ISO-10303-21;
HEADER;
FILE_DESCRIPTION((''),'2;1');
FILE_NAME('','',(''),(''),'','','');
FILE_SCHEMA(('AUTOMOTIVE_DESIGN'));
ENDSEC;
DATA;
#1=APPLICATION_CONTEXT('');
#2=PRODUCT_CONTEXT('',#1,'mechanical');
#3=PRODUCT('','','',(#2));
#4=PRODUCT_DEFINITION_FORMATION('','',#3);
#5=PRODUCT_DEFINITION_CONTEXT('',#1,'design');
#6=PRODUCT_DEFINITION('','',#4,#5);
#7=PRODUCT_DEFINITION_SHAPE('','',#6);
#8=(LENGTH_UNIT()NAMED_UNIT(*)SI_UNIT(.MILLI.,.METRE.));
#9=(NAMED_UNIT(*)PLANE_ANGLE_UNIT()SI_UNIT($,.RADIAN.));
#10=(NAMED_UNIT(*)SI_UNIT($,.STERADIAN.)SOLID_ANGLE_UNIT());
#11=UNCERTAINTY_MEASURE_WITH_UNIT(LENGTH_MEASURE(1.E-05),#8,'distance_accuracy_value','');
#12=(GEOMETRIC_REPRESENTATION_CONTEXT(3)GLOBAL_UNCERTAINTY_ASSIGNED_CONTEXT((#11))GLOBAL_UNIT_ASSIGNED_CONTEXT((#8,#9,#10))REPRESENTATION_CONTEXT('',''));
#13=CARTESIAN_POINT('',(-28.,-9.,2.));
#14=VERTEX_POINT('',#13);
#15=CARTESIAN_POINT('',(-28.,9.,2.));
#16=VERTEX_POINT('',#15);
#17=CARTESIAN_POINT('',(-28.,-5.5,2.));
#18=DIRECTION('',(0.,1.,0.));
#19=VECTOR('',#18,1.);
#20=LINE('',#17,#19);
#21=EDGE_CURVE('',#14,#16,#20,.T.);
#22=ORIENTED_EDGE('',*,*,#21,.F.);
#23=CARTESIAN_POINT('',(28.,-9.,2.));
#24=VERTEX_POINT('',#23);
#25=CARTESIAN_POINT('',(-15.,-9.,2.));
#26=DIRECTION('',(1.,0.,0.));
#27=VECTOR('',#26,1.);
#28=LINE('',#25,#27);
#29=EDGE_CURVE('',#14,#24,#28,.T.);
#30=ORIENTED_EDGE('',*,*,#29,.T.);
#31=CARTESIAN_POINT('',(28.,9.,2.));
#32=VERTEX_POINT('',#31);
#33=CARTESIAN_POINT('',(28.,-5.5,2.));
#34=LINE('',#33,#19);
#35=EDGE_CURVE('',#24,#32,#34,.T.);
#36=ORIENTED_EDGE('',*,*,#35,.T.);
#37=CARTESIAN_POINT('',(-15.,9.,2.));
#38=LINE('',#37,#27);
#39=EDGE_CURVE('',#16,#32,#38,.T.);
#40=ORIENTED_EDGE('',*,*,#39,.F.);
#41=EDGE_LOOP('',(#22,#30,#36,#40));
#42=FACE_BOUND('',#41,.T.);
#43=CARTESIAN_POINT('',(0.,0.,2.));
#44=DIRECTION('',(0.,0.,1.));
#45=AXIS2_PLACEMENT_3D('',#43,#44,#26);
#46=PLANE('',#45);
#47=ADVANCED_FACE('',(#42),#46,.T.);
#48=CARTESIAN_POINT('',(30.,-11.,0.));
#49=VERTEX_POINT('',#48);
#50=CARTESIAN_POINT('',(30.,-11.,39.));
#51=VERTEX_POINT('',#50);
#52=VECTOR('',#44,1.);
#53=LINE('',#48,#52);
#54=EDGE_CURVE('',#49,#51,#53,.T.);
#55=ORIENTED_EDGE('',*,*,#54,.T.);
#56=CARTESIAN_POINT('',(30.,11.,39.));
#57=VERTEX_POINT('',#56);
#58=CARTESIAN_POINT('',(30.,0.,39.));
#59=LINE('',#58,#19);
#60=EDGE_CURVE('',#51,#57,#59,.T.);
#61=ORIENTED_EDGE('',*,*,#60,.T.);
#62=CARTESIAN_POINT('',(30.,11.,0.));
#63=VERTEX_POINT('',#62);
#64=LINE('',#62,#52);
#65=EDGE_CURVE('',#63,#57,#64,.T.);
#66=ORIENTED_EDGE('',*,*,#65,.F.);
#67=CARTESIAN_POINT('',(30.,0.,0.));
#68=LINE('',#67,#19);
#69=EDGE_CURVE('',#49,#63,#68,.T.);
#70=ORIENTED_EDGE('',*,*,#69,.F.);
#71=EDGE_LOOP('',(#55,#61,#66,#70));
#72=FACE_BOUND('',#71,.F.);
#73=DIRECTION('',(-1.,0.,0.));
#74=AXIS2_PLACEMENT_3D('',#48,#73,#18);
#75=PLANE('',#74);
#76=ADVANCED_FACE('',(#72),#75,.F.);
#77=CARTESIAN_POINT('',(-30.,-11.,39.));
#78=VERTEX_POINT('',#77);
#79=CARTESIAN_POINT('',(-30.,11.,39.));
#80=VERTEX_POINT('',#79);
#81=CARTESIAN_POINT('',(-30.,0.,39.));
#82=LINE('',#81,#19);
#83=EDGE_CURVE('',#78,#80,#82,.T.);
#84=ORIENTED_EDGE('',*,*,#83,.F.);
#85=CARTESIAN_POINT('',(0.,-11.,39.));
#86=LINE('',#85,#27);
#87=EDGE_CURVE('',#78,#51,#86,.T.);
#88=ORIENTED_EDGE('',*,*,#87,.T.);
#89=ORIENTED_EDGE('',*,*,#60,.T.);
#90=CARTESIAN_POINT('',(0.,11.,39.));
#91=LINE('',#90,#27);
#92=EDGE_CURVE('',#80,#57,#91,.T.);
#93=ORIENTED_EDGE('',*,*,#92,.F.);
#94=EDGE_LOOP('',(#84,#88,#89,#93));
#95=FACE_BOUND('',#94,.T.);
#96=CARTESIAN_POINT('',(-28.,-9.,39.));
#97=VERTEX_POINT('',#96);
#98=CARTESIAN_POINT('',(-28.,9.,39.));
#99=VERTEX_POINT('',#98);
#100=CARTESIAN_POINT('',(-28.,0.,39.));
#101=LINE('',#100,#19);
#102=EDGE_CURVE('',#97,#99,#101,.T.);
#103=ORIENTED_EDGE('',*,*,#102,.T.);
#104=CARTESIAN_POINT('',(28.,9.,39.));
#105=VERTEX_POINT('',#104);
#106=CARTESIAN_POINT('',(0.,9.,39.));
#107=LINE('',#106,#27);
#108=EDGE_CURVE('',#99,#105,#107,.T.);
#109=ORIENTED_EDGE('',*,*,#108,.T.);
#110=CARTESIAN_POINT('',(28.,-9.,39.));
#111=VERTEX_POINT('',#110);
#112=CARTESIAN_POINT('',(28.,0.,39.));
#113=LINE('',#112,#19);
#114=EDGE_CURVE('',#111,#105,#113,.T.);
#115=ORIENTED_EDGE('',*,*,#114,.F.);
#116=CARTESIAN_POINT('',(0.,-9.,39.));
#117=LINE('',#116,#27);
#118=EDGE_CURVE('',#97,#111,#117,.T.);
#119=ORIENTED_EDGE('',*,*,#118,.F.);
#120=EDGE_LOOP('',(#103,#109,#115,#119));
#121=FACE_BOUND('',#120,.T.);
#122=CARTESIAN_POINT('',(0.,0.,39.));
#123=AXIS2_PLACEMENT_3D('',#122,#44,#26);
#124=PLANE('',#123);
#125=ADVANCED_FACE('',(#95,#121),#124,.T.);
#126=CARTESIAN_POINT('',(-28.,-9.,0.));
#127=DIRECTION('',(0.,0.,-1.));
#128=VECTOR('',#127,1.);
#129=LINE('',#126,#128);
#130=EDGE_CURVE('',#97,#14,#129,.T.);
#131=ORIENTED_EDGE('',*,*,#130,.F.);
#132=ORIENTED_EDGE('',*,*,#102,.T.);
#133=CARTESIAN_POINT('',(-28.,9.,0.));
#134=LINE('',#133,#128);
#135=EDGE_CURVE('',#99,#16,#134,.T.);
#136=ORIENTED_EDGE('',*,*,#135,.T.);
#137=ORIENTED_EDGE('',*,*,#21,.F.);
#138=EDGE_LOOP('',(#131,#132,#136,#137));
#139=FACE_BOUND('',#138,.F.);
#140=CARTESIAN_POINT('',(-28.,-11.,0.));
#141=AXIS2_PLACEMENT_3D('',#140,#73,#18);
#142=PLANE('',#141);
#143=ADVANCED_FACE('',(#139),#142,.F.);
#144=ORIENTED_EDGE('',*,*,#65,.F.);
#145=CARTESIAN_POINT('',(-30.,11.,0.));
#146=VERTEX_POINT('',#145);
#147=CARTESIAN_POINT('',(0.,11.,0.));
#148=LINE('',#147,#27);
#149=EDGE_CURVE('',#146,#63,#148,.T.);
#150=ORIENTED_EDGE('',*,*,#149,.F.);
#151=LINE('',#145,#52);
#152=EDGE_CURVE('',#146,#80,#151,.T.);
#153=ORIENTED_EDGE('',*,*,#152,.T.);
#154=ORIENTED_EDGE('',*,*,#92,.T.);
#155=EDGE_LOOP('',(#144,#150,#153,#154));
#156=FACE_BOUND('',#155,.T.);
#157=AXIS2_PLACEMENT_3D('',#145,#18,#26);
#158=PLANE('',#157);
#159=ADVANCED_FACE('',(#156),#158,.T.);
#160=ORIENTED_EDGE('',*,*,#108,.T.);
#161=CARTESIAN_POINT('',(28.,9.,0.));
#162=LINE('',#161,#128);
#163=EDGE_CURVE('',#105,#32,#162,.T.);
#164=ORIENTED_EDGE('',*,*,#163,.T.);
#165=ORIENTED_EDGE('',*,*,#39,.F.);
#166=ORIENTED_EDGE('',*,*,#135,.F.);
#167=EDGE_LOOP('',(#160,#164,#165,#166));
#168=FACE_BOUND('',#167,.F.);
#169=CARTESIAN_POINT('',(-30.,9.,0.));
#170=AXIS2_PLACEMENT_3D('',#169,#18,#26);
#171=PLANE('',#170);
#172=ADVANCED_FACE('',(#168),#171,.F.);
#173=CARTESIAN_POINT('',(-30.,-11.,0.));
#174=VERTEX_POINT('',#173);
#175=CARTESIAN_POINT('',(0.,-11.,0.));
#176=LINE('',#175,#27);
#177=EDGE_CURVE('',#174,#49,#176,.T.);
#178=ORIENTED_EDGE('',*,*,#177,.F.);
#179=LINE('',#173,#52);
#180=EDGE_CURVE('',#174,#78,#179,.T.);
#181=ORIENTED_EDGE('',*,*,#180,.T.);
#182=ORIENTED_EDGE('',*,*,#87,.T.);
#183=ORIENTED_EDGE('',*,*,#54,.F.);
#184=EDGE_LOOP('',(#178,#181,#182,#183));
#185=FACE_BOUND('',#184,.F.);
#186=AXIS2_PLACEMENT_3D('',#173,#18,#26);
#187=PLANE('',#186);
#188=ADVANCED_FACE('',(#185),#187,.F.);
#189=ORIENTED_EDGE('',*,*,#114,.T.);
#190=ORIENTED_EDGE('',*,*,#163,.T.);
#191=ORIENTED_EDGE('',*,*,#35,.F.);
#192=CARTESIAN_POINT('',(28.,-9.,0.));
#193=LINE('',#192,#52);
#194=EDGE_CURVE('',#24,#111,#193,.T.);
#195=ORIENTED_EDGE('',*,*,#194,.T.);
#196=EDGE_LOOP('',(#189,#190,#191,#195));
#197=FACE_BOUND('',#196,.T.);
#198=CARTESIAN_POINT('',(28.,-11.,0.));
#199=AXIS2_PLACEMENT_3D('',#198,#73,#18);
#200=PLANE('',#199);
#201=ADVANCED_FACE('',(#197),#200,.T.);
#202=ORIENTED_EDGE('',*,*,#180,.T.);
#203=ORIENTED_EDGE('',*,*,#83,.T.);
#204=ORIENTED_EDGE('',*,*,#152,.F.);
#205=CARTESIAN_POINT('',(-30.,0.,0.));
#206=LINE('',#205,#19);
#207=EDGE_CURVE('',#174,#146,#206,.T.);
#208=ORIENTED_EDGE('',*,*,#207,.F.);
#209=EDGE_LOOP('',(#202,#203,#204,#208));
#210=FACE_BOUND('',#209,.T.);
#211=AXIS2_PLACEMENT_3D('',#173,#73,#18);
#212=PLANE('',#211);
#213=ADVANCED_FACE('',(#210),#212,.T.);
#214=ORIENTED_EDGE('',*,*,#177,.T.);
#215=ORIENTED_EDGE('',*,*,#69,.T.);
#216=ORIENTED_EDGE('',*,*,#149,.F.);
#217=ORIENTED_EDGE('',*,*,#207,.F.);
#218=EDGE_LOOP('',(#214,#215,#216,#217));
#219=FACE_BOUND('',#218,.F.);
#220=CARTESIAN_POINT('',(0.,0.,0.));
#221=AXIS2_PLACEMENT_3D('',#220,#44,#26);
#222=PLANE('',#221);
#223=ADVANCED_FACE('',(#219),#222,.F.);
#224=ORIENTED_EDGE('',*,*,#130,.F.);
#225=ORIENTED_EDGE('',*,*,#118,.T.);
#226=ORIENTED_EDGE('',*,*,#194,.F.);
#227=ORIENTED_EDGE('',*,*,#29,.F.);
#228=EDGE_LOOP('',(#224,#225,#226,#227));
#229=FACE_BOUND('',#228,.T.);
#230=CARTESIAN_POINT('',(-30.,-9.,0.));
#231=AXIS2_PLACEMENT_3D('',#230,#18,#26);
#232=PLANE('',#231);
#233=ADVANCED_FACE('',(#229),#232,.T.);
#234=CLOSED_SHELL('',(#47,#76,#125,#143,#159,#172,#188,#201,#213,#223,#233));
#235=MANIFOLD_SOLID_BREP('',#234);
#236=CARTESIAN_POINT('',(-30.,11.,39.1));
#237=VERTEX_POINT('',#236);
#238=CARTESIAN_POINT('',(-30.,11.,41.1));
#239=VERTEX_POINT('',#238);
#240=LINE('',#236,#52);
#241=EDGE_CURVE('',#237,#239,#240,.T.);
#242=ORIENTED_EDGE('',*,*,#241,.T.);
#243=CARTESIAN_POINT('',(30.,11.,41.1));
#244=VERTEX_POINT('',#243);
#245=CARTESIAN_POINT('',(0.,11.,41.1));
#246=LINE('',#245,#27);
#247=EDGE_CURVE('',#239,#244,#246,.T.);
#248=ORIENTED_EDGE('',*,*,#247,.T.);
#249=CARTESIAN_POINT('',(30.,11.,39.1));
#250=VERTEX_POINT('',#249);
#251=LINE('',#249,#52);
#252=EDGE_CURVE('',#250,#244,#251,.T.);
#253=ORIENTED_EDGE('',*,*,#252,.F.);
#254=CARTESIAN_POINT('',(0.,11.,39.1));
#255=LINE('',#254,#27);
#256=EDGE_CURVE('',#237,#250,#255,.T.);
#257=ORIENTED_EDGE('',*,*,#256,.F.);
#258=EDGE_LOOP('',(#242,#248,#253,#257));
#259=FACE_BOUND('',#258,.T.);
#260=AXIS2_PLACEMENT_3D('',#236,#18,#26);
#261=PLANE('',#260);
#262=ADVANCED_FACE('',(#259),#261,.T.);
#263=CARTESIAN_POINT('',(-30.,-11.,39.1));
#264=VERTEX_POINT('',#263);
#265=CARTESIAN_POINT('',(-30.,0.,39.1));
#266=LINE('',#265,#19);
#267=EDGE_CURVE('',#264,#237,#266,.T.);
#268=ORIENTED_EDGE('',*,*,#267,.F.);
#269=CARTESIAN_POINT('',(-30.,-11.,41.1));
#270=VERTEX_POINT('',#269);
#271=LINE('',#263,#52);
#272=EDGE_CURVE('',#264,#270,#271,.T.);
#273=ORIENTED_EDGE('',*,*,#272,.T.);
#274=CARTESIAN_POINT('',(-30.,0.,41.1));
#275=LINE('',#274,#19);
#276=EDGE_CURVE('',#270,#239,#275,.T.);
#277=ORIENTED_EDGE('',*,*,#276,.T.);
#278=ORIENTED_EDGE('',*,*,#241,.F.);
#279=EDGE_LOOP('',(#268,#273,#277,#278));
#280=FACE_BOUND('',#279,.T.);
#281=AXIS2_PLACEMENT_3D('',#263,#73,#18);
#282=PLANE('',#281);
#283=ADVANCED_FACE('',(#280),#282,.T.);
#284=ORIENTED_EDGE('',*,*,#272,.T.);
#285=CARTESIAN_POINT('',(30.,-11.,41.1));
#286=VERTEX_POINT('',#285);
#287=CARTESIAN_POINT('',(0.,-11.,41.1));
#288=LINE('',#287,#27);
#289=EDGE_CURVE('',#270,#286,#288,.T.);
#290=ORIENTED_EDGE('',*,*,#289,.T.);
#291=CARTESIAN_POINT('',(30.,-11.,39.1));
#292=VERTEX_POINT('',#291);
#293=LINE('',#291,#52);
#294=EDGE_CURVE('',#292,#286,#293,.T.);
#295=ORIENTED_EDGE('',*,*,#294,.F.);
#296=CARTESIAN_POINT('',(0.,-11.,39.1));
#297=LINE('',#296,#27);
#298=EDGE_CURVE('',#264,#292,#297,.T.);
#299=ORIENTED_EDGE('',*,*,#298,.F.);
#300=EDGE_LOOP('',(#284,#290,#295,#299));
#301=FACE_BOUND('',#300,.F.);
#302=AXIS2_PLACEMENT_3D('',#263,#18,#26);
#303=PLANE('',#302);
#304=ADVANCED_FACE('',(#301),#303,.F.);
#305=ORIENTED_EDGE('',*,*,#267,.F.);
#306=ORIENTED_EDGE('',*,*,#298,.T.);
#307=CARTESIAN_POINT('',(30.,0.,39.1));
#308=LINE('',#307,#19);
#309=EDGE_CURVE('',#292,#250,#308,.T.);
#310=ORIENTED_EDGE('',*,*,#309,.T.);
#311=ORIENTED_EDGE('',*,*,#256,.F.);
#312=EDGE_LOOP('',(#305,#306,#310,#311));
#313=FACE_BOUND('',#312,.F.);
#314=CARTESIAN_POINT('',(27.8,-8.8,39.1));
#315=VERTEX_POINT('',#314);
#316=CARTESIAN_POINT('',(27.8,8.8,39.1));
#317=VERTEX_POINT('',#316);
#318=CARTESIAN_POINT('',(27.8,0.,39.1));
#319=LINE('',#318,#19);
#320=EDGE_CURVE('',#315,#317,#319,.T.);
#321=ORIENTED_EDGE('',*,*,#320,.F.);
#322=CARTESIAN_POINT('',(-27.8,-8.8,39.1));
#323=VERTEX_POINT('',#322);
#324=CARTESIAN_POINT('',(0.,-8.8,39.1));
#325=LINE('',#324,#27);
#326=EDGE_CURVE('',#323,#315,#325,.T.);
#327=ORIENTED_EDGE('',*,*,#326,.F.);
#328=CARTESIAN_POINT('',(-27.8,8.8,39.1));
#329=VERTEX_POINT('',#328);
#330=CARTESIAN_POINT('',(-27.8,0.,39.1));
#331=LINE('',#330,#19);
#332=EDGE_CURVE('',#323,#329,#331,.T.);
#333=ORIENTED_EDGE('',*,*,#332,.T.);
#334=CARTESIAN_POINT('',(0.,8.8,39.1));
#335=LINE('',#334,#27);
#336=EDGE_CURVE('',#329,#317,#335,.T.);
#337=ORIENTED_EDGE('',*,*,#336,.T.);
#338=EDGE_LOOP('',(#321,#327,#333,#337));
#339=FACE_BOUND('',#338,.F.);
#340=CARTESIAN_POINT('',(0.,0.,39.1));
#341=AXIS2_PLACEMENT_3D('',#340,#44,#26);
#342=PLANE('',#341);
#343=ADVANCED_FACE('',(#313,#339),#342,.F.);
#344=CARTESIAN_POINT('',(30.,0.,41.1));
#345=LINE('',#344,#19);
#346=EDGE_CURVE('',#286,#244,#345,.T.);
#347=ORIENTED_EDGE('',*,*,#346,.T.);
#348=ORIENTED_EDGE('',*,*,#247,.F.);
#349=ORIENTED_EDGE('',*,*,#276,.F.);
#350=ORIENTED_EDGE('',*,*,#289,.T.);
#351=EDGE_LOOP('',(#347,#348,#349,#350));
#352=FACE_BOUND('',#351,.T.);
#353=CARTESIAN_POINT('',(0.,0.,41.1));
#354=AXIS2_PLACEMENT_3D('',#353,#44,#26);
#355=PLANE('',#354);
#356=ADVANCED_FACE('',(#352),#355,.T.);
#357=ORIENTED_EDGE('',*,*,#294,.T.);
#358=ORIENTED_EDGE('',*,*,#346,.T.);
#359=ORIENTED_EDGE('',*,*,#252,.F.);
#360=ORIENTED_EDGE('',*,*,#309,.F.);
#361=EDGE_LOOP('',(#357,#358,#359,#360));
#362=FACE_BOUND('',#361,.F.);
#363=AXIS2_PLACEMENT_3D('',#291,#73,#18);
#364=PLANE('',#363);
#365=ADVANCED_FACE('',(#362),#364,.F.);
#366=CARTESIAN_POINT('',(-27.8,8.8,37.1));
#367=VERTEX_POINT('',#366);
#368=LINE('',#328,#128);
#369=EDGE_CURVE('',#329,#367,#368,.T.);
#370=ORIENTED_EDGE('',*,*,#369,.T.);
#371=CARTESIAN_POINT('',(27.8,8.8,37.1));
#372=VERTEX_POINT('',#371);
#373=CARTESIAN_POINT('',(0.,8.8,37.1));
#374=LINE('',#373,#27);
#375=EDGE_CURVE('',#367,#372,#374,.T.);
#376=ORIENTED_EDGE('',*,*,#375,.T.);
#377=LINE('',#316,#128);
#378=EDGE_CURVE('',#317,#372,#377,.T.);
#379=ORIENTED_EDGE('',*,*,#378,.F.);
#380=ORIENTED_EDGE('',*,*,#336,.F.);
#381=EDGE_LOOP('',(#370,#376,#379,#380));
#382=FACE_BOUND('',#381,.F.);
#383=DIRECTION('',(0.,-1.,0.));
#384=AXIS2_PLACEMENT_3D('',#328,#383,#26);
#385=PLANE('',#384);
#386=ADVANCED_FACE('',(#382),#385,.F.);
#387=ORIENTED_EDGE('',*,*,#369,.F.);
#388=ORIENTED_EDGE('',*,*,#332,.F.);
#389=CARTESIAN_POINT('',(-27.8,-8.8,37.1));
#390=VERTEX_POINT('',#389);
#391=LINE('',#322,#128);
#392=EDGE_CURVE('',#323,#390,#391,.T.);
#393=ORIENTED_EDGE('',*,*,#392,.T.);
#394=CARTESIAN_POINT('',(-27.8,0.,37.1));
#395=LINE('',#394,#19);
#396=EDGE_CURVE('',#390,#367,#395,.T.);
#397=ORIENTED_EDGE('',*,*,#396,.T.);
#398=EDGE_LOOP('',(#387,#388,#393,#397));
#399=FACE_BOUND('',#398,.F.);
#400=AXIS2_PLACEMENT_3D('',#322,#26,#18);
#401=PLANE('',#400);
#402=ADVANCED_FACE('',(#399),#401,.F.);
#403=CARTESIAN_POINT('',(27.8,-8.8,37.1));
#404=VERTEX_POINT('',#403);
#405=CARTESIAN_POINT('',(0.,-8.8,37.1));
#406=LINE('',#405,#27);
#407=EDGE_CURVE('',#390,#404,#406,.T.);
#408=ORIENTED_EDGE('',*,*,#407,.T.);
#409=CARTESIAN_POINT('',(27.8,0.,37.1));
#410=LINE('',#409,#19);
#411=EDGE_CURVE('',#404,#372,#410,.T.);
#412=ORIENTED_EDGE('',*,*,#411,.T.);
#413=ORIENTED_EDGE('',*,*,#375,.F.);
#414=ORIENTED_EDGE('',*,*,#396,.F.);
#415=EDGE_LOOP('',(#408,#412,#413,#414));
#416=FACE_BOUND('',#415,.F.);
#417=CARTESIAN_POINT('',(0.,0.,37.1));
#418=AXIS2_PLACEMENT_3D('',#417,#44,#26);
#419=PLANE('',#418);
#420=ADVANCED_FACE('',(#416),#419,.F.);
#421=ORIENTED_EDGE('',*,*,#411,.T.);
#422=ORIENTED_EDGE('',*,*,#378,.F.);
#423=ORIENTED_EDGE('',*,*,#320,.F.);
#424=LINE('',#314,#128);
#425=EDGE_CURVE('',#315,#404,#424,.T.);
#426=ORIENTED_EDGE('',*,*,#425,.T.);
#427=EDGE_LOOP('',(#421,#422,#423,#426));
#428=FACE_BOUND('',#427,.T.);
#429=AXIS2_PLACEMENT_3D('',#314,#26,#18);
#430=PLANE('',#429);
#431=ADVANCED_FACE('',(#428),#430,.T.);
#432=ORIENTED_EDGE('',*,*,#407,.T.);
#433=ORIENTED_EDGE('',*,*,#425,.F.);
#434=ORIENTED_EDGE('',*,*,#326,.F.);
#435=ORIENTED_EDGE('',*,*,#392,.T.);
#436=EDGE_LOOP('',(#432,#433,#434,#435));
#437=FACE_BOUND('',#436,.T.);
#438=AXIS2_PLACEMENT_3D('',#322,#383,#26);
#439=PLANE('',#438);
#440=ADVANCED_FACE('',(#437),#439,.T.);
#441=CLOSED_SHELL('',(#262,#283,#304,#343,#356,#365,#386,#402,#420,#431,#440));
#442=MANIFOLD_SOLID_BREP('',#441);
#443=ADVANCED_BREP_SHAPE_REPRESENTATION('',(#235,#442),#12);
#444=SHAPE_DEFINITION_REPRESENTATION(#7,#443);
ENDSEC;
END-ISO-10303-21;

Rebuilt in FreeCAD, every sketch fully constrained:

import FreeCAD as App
import Part
import Sketcher
Q = App.Units.Quantity


def faces_at(feature, points):
    """Names of the faces that lie closest to the given points."""
    faces = feature.Shape.Faces
    near = lambda p: min(range(len(faces)), key=lambda i: faces[i].distToShape(Part.Vertex(*p))[0])
    return sorted({f"Face{near(p) + 1}" for p in points})

doc = App.newDocument("Part")
params = doc.addObject("Spreadsheet::Sheet", "Params")
for row, (alias, value) in enumerate([
    ("sketch1_width", "60 mm"),
    ("sketch1_height", "22 mm"),
    ("pad1_length", "39 mm"),
    ("thickness_wall", "2 mm"),
    ("sketch2_width", "60 mm"),
    ("sketch2_height", "22 mm"),
    ("pad2_length", "2 mm"),
    ("sketch3_width", "55.6 mm"),
    ("sketch3_height", "17.6 mm"),
    ("pad3_length", "2 mm"),
], start=1):
    params.set(f"A{row}", alias)
    params.set(f"B{row}", "=" + value)
    params.setAlias(f"B{row}", alias)

body = doc.addObject("PartDesign::Body", "Body")

# Sketch on XY plane
sketch1 = body.newObject("Sketcher::SketchObject", "Sketch")
sketch1.AttachmentSupport = (doc.getObject("XY_Plane"), [""])
sketch1.MapMode = "FlatFace"
sketch1.addGeometry([
    Part.LineSegment(App.Vector(-30, 11, 0), App.Vector(-30, -11, 0)),
    Part.LineSegment(App.Vector(-30, -11, 0), App.Vector(30, -11, 0)),
    Part.LineSegment(App.Vector(30, -11, 0), App.Vector(30, 11, 0)),
    Part.LineSegment(App.Vector(30, 11, 0), App.Vector(-30, 11, 0)),
], False)
sketch1.addConstraint([
    Sketcher.Constraint("Coincident", 0, 2, 1, 1),
    Sketcher.Constraint("Coincident", 1, 2, 2, 1),
    Sketcher.Constraint("Coincident", 2, 2, 3, 1),
    Sketcher.Constraint("Coincident", 3, 2, 0, 1),
    Sketcher.Constraint("Vertical", 0),
    Sketcher.Constraint("Horizontal", 1),
    Sketcher.Constraint("Vertical", 2),
    Sketcher.Constraint("Horizontal", 3),
    Sketcher.Constraint("Symmetric", 0, 2, 2, 2, -1, 1),
    Sketcher.Constraint("DistanceX", 1, 1, 1, 2, Q("60 mm")),
    Sketcher.Constraint("DistanceY", 0, 2, 0, 1, Q("22 mm")),
])
sketch1.setExpression("Constraints[9]", "Params.sketch1_width")
sketch1.setExpression("Constraints[10]", "Params.sketch1_height")
pad1 = body.newObject("PartDesign::Pad", "Pad")
pad1.Profile = sketch1
pad1.setExpression("Length", "Params.pad1_length")
doc.recompute()

thickness = body.newObject("PartDesign::Thickness", "Thickness")
thickness.Base = (pad1, faces_at(pad1, [(0, 0, 39)]))
thickness.setExpression("Value", "Params.thickness_wall")
thickness.Reversed = True
thickness.Join = "Arc"
body2 = doc.addObject("PartDesign::Body", "Body001")

# Sketch on XY plane
sketch2 = body2.newObject("Sketcher::SketchObject", "Sketch001")
sketch2.AttachmentSupport = (doc.getObject("XY_Plane001"), [""])
sketch2.MapMode = "FlatFace"
sketch2.AttachmentOffset = App.Placement(App.Vector(0, 0, 39.1), App.Rotation())
sketch2.addGeometry([
    Part.LineSegment(App.Vector(-30, 11, 0), App.Vector(-30, -11, 0)),
    Part.LineSegment(App.Vector(-30, -11, 0), App.Vector(30, -11, 0)),
    Part.LineSegment(App.Vector(30, -11, 0), App.Vector(30, 11, 0)),
    Part.LineSegment(App.Vector(30, 11, 0), App.Vector(-30, 11, 0)),
], False)
sketch2.addConstraint([
    Sketcher.Constraint("Coincident", 0, 2, 1, 1),
    Sketcher.Constraint("Coincident", 1, 2, 2, 1),
    Sketcher.Constraint("Coincident", 2, 2, 3, 1),
    Sketcher.Constraint("Coincident", 3, 2, 0, 1),
    Sketcher.Constraint("Vertical", 0),
    Sketcher.Constraint("Horizontal", 1),
    Sketcher.Constraint("Vertical", 2),
    Sketcher.Constraint("Horizontal", 3),
    Sketcher.Constraint("Symmetric", 0, 2, 2, 2, -1, 1),
    Sketcher.Constraint("DistanceX", 1, 1, 1, 2, Q("60 mm")),
    Sketcher.Constraint("DistanceY", 0, 2, 0, 1, Q("22 mm")),
])
sketch2.setExpression("Constraints[9]", "Params.sketch2_width")
sketch2.setExpression("Constraints[10]", "Params.sketch2_height")
pad2 = body2.newObject("PartDesign::Pad", "Pad001")
pad2.Profile = sketch2
pad2.setExpression("Length", "Params.pad2_length")

# Sketch on XY plane
sketch3 = body2.newObject("Sketcher::SketchObject", "Sketch002")
sketch3.AttachmentSupport = (doc.getObject("XY_Plane001"), [""])
sketch3.MapMode = "FlatFace"
sketch3.AttachmentOffset = App.Placement(App.Vector(0, 0, 39.1), App.Rotation())
sketch3.addGeometry([
    Part.LineSegment(App.Vector(-27.8, 8.8, 0), App.Vector(-27.8, -8.8, 0)),
    Part.LineSegment(App.Vector(-27.8, -8.8, 0), App.Vector(27.8, -8.8, 0)),
    Part.LineSegment(App.Vector(27.8, -8.8, 0), App.Vector(27.8, 8.8, 0)),
    Part.LineSegment(App.Vector(27.8, 8.8, 0), App.Vector(-27.8, 8.8, 0)),
], False)
sketch3.addConstraint([
    Sketcher.Constraint("Coincident", 0, 2, 1, 1),
    Sketcher.Constraint("Coincident", 1, 2, 2, 1),
    Sketcher.Constraint("Coincident", 2, 2, 3, 1),
    Sketcher.Constraint("Coincident", 3, 2, 0, 1),
    Sketcher.Constraint("Vertical", 0),
    Sketcher.Constraint("Horizontal", 1),
    Sketcher.Constraint("Vertical", 2),
    Sketcher.Constraint("Horizontal", 3),
    Sketcher.Constraint("Symmetric", 0, 2, 2, 2, -1, 1),
    Sketcher.Constraint("DistanceX", 1, 1, 1, 2, Q("55.6 mm")),
    Sketcher.Constraint("DistanceY", 0, 2, 0, 1, Q("17.6 mm")),
])
sketch3.setExpression("Constraints[9]", "Params.sketch3_width")
sketch3.setExpression("Constraints[10]", "Params.sketch3_height")
pad3 = body2.newObject("PartDesign::Pad", "Pad002")
pad3.Profile = sketch3
pad3.setExpression("Length", "Params.pad3_length")
pad3.Reversed = True

doc.recompute()
